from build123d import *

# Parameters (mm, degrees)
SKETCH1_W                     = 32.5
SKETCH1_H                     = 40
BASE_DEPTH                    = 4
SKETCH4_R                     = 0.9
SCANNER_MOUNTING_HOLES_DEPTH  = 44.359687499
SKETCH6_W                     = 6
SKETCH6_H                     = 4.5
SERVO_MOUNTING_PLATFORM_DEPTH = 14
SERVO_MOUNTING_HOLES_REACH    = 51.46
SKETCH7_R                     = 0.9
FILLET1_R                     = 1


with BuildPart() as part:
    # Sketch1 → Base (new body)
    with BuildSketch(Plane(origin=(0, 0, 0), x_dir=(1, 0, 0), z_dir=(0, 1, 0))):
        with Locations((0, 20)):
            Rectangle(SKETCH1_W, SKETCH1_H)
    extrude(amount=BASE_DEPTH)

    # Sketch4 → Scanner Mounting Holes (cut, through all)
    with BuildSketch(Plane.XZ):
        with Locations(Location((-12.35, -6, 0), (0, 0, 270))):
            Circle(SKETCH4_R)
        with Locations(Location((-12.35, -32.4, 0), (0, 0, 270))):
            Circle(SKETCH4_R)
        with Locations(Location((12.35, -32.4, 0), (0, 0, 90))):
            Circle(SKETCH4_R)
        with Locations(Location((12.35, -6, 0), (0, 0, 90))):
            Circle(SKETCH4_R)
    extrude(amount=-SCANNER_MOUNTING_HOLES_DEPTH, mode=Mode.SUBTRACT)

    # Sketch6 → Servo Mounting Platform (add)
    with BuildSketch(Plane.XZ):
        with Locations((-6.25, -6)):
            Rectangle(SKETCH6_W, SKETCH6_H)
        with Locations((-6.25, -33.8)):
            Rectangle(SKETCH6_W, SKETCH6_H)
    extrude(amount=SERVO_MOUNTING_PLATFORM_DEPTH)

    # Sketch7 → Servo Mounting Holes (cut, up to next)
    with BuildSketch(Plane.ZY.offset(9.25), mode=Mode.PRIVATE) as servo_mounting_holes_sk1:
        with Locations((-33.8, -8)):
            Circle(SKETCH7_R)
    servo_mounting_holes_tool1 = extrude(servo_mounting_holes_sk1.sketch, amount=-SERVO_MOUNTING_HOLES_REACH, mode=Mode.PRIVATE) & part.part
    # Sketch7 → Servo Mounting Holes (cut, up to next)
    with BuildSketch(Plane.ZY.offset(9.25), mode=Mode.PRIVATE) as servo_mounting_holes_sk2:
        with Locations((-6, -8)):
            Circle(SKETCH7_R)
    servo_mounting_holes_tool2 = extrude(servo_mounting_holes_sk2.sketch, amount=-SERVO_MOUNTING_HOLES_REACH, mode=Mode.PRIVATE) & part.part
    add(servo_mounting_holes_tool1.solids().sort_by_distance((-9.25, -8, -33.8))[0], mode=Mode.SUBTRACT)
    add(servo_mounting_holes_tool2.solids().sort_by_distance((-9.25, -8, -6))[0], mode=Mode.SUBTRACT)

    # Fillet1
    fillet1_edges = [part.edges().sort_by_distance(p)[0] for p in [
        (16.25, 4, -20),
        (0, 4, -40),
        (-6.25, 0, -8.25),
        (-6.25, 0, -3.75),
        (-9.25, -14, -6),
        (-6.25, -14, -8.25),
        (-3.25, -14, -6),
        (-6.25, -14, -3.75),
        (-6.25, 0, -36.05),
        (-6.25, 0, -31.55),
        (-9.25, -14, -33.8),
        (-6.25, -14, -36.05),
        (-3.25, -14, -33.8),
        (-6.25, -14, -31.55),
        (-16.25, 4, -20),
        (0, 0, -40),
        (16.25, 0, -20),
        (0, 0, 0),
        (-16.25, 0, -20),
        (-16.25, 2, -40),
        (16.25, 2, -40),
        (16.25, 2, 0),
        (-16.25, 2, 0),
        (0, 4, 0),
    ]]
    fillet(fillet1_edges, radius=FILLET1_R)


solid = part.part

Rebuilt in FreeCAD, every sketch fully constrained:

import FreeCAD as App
import Part
import Sketcher
Q = App.Units.Quantity


def edges_at(feature, points):
    """Names of the edges that pass closest to the given points."""
    edges = feature.Shape.Edges
    near = lambda p: min(range(len(edges)), key=lambda i: edges[i].distToShape(Part.Vertex(*p))[0])
    return sorted({f"Edge{near(p) + 1}" for p in points})

doc = App.newDocument("Part")
body = doc.addObject("PartDesign::Body", "Body")

sketch1 = body.newObject("Sketcher::SketchObject", "Sketch")
sketch1.AttachmentSupport = (doc.getObject("XZ_Plane"), [""])
sketch1.MapMode = "FlatFace"
sketch1.addGeometry(Part.LineSegment(App.Vector(-16.25, -40, 0), App.Vector(-16.25, 0, 0)), False)
sketch1.addGeometry(Part.LineSegment(App.Vector(-16.25, 0, 0), App.Vector(16.25, 0, 0)), False)
sketch1.addGeometry(Part.LineSegment(App.Vector(16.25, 0, 0), App.Vector(16.25, -40, 0)), False)
sketch1.addGeometry(Part.LineSegment(App.Vector(16.25, -40, 0), App.Vector(-16.25, -40, 0)), False)
sketch1.addConstraint(Sketcher.Constraint("Coincident", 0, 2, 1, 1))
sketch1.addConstraint(Sketcher.Constraint("Coincident", 1, 2, 2, 1))
sketch1.addConstraint(Sketcher.Constraint("Coincident", 2, 2, 3, 1))
sketch1.addConstraint(Sketcher.Constraint("Coincident", 3, 2, 0, 1))
sketch1.addConstraint(Sketcher.Constraint("Vertical", 0))
sketch1.addConstraint(Sketcher.Constraint("Horizontal", 1))
sketch1.addConstraint(Sketcher.Constraint("Vertical", 2))
sketch1.addConstraint(Sketcher.Constraint("Horizontal", 3))
sketch1.addConstraint(Sketcher.Constraint("Symmetric", 0, 2, 1, 2, -1, 1))
sketch1.addConstraint(Sketcher.Constraint("DistanceY", 0, 1, 0, 2, Q("40 mm")))
sketch1.addConstraint(Sketcher.Constraint("DistanceX", 1, 1, 1, 2, Q("32.5 mm")))
pad1 = body.newObject("PartDesign::Pad", "Pad")
pad1.Profile = sketch1
pad1.Length = 4
pad1.Reversed = True

sketch2 = body.newObject("Sketcher::SketchObject", "Sketch001")
sketch2.AttachmentSupport = (doc.getObject("XZ_Plane"), [""])
sketch2.MapMode = "FlatFace"
sketch2.addGeometry(Part.Circle(App.Vector(-12.35, -6, 0), App.Vector(0, 0, 1), 0.9), False)
sketch2.addGeometry(Part.Circle(App.Vector(-12.35, -32.4, 0), App.Vector(0, 0, 1), 0.9), False)
sketch2.addGeometry(Part.Circle(App.Vector(12.35, -32.4, 0), App.Vector(0, 0, 1), 0.9), False)
sketch2.addGeometry(Part.Circle(App.Vector(12.35, -6, 0), App.Vector(0, 0, 1), 0.9), False)
sketch2.addConstraint(Sketcher.Constraint("Equal", 0, 1))
sketch2.addConstraint(Sketcher.Constraint("Equal", 1, 2))
sketch2.addConstraint(Sketcher.Constraint("Equal", 2, 3))
sketch2.addConstraint(Sketcher.Constraint("Symmetric", 1, 3, 2, 3, -2))
sketch2.addConstraint(Sketcher.Constraint("Symmetric", 0, 3, 3, 3, -2))
sketch2.addConstraint(Sketcher.Constraint("Vertical", 0, 3, 1, 3))
sketch2.addConstraint(Sketcher.Constraint("Diameter", 0, Q("1.8 mm")))
sketch2.addConstraint(Sketcher.Constraint("DistanceY", 0, 3, -1, 1, Q("6 mm")))
sketch2.addConstraint(Sketcher.Constraint("DistanceY", 1, 3, -1, 1, Q("32.4 mm")))
sketch2.addConstraint(Sketcher.Constraint("DistanceX", 1, 3, 2, 3, Q("24.7 mm")))
pocket1 = body.newObject("PartDesign::Pocket", "Pocket")
pocket1.Profile = sketch2
pocket1.Type = "ThroughAll"

sketch3 = body.newObject("Sketcher::SketchObject", "Sketch002")
sketch3.AttachmentSupport = (doc.getObject("XZ_Plane"), [""])
sketch3.MapMode = "FlatFace"
sketch3.addGeometry(Part.LineSegment(App.Vector(-9.25, -3.75, 0), App.Vector(-9.25, -8.25, 0)), False)
sketch3.addGeometry(Part.LineSegment(App.Vector(-9.25, -8.25, 0), App.Vector(-3.25, -8.25, 0)), False)
sketch3.addGeometry(Part.LineSegment(App.Vector(-3.25, -8.25, 0), App.Vector(-3.25, -3.75, 0)), False)
sketch3.addGeometry(Part.LineSegment(App.Vector(-3.25, -3.75, 0), App.Vector(-9.25, -3.75, 0)), False)
sketch3.addGeometry(Part.LineSegment(App.Vector(-9.25, -31.55, 0), App.Vector(-9.25, -36.05, 0)), False)
sketch3.addGeometry(Part.LineSegment(App.Vector(-9.25, -36.05, 0), App.Vector(-3.25, -36.05, 0)), False)
sketch3.addGeometry(Part.LineSegment(App.Vector(-3.25, -36.05, 0), App.Vector(-3.25, -31.55, 0)), False)
sketch3.addGeometry(Part.LineSegment(App.Vector(-3.25, -31.55, 0), App.Vector(-9.25, -31.55, 0)), False)
sketch3.addConstraint(Sketcher.Constraint("Coincident", 0, 2, 1, 1))
sketch3.addConstraint(Sketcher.Constraint("Coincident", 1, 2, 2, 1))
sketch3.addConstraint(Sketcher.Constraint("Coincident", 2, 2, 3, 1))
sketch3.addConstraint(Sketcher.Constraint("Coincident", 3, 2, 0, 1))
sketch3.addConstraint(Sketcher.Constraint("Coincident", 4, 2, 5, 1))
sketch3.addConstraint(Sketcher.Constraint("Coincident", 5, 2, 6, 1))
sketch3.addConstraint(Sketcher.Constraint("Coincident", 6, 2, 7, 1))
sketch3.addConstraint(Sketcher.Constraint("Coincident", 7, 2, 4, 1))
sketch3.addConstraint(Sketcher.Constraint("Vertical", 0))
sketch3.addConstraint(Sketcher.Constraint("Horizontal", 1))
sketch3.addConstraint(Sketcher.Constraint("Vertical", 2))
sketch3.addConstraint(Sketcher.Constraint("Horizontal", 3))
sketch3.addConstraint(Sketcher.Constraint("Vertical", 4))
sketch3.addConstraint(Sketcher.Constraint("Horizontal", 5))
sketch3.addConstraint(Sketcher.Constraint("Vertical", 6))
sketch3.addConstraint(Sketcher.Constraint("Horizontal", 7))
sketch3.addConstraint(Sketcher.Constraint("Vertical", 3, 2, 4, 2))
sketch3.addConstraint(Sketcher.Constraint("Vertical", 2, 2, 5, 2))
sketch3.addConstraint(Sketcher.Constraint("Equal", 2, 4))
sketch3.addConstraint(Sketcher.Constraint("DistanceX", 1, 1, 1, 2, Q("6 mm")))
sketch3.addConstraint(Sketcher.Constraint("DistanceY", 0, 2, 0, 1, Q("4.5 mm")))
sketch3.addConstraint(Sketcher.Constraint("DistanceY", 4, 2, 0, 2, Q("27.8 mm")))
sketch3.addConstraint(Sketcher.Constraint("DistanceX", 0, 2, -1, 1, Q("9.25 mm")))
sketch3.addConstraint(Sketcher.Constraint("DistanceY", 0, 2, -1, 1, Q("8.25 mm")))
pad2 = body.newObject("PartDesign::Pad", "Pad001")
pad2.Profile = sketch3
pad2.Length = 14

sketch4 = body.newObject("Sketcher::SketchObject", "Sketch003")
sketch4.AttachmentSupport = (doc.getObject("YZ_Plane"), [""])
sketch4.MapMode = "FlatFace"
sketch4.AttachmentOffset = App.Placement(App.Vector(0, 0, -9.25), App.Rotation())
sketch4.addGeometry(Part.Circle(App.Vector(-8, -33.8, 0), App.Vector(0, 0, 1), 0.9), False)
sketch4.addConstraint(Sketcher.Constraint("Diameter", 0, Q("1.8 mm")))
sketch4.addConstraint(Sketcher.Constraint("DistanceX", 0, 3, -1, 1, Q("8 mm")))
sketch4.addConstraint(Sketcher.Constraint("DistanceY", 0, 3, -1, 1, Q("33.8 mm")))
pocket2 = body.newObject("PartDesign::Pocket", "Pocket001")
pocket2.Profile = sketch4
pocket2.Type = "UpToFirst"
pocket2.Reversed = True

sketch5 = body.newObject("Sketcher::SketchObject", "Sketch004")
sketch5.AttachmentSupport = (doc.getObject("YZ_Plane"), [""])
sketch5.MapMode = "FlatFace"
sketch5.AttachmentOffset = App.Placement(App.Vector(0, 0, -9.25), App.Rotation())
sketch5.addGeometry(Part.Circle(App.Vector(-8, -6, 0), App.Vector(0, 0, 1), 0.9), False)
sketch5.addConstraint(Sketcher.Constraint("Diameter", 0, Q("1.8 mm")))
sketch5.addConstraint(Sketcher.Constraint("DistanceX", 0, 3, -1, 1, Q("8 mm")))
sketch5.addConstraint(Sketcher.Constraint("DistanceY", 0, 3, -1, 1, Q("6 mm")))
pocket3 = body.newObject("PartDesign::Pocket", "Pocket002")
pocket3.Profile = sketch5
pocket3.Type = "UpToFirst"
pocket3.Reversed = True
doc.recompute()

fillet = body.newObject("PartDesign::Fillet", "Fillet")
fillet.Base = (pocket3, edges_at(pocket3, [
    (16.25, 4, -20),
    (0, 4, -40),
    (-6.25, 0, -8.25),
    (-6.25, 0, -3.75),
    (-9.25, -14, -6),
    (-6.25, -14, -8.25),
    (-3.25, -14, -6),
    (-6.25, -14, -3.75),
    (-6.25, 0, -36.05),
    (-6.25, 0, -31.55),
    (-9.25, -14, -33.8),
    (-6.25, -14, -36.05),
    (-3.25, -14, -33.8),
    (-6.25, -14, -31.55),
    (-16.25, 4, -20),
    (0, 0, -40),
    (16.25, 0, -20),
    (0, 0, 0),
    (-16.25, 0, -20),
    (-16.25, 2, -40),
    (16.25, 2, -40),
    (16.25, 2, 0),
    (-16.25, 2, 0),
    (0, 4, 0),
]))
fillet.Radius = 1

doc.recompute()
